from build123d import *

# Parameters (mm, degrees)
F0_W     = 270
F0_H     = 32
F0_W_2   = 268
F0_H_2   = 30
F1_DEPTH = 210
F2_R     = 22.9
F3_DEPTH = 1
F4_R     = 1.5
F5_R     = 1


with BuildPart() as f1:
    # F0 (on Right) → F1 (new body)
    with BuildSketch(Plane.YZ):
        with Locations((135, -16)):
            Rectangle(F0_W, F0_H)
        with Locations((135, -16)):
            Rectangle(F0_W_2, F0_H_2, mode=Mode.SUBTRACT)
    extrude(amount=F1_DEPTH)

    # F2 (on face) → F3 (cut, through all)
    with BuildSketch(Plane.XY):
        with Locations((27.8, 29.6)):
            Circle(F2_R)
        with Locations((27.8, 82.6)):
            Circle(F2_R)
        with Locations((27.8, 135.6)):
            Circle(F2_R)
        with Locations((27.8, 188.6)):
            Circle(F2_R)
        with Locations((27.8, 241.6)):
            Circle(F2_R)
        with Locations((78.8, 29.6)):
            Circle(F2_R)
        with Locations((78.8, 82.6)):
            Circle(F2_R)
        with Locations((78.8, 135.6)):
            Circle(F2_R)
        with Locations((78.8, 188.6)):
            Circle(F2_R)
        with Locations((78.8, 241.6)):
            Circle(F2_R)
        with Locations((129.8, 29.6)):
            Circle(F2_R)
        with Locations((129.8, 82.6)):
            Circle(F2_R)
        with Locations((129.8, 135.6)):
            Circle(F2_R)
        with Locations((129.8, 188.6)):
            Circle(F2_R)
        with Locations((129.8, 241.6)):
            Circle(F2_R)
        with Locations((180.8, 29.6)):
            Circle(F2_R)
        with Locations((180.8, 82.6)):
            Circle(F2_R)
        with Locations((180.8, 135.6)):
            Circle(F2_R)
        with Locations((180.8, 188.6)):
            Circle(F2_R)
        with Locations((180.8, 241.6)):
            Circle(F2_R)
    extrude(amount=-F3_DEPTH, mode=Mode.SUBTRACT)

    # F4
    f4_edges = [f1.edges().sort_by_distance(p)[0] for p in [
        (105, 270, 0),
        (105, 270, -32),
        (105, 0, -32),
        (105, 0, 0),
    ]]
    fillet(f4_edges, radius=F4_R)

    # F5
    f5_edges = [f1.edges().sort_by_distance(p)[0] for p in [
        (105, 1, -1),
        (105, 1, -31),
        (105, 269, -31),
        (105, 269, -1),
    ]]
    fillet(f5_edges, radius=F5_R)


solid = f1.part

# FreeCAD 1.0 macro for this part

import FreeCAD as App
import Part
import Sketcher
from FreeCAD import Vector
Q = App.Units.Quantity


def edges_at(feature, points):
    """Names of the edges that pass closest to the given points."""
    edges = feature.Shape.Edges
    near = lambda p: min(range(len(edges)), key=lambda i: edges[i].distToShape(Part.Vertex(*p))[0])
    return sorted({f"Edge{near(p) + 1}" for p in points})

doc = App.newDocument("Part")
params = doc.addObject("Spreadsheet::Sheet", "Params")
for row, (alias, value) in enumerate([
    ("sketch1_width", "270 mm"),
    ("sketch1_width2", "268 mm"),
    ("sketch1_height", "32 mm"),
    ("sketch1_height2", "30 mm"),
    ("pad1_length", "210 mm"),
    ("sketch2_diameter", "45.8 mm"),
    ("pocket1_length", "1 mm"),
    ("fillet_radius", "1.5 mm"),
    ("fillet2_radius", "1 mm"),
], start=1):
    params.set(f"A{row}", alias)
    params.set(f"B{row}", "=" + value)
    params.setAlias(f"B{row}", alias)

body = doc.addObject("PartDesign::Body", "Body")

# Sketch on YZ plane
sketch1 = body.newObject("Sketcher::SketchObject", "Sketch")
sketch1.AttachmentSupport = (doc.getObject("YZ_Plane"), [""])
sketch1.MapMode = "FlatFace"
sketch1.addGeometry(Part.LineSegment(Vector(0, 0, 0), Vector(0, -32, 0)), False)
sketch1.addGeometry(Part.LineSegment(Vector(0, -32, 0), Vector(270, -32, 0)), False)
sketch1.addGeometry(Part.LineSegment(Vector(270, -32, 0), Vector(270, 0, 0)), False)
sketch1.addGeometry(Part.LineSegment(Vector(270, 0, 0), Vector(0, 0, 0)), False)
sketch1.addGeometry(Part.LineSegment(Vector(269, -31, 0), Vector(1, -31, 0)), False)
sketch1.addGeometry(Part.LineSegment(Vector(1, -31, 0), Vector(1, -1, 0)), False)
sketch1.addGeometry(Part.LineSegment(Vector(1, -1, 0), Vector(269, -1, 0)), False)
sketch1.addGeometry(Part.LineSegment(Vector(269, -1, 0), Vector(269, -31, 0)), False)
sketch1.addConstraint(Sketcher.Constraint("Coincident", 0, 2, 1, 1))
sketch1.addConstraint(Sketcher.Constraint("Coincident", 1, 2, 2, 1))
sketch1.addConstraint(Sketcher.Constraint("Coincident", 2, 2, 3, 1))
sketch1.addConstraint(Sketcher.Constraint("Coincident", 3, 2, 0, 1))
sketch1.addConstraint(Sketcher.Constraint("Coincident", 4, 2, 5, 1))
sketch1.addConstraint(Sketcher.Constraint("Coincident", 5, 2, 6, 1))
sketch1.addConstraint(Sketcher.Constraint("Coincident", 6, 2, 7, 1))
sketch1.addConstraint(Sketcher.Constraint("Coincident", 7, 2, 4, 1))
sketch1.addConstraint(Sketcher.Constraint("Vertical", 0))
sketch1.addConstraint(Sketcher.Constraint("Horizontal", 1))
sketch1.addConstraint(Sketcher.Constraint("Vertical", 2))
sketch1.addConstraint(Sketcher.Constraint("Horizontal", 3))
sketch1.addConstraint(Sketcher.Constraint("Horizontal", 4))
sketch1.addConstraint(Sketcher.Constraint("Vertical", 5))
sketch1.addConstraint(Sketcher.Constraint("Horizontal", 6))
sketch1.addConstraint(Sketcher.Constraint("Vertical", 7))
sketch1.addConstraint(Sketcher.Constraint("Coincident", 3, 2, -1, 1))
sketch1.addConstraint(Sketcher.Constraint("DistanceX", 1, 1, 1, 2, Q("270 mm")))
sketch1.addConstraint(Sketcher.Constraint("DistanceX", 4, 2, 4, 1, Q("268 mm")))
sketch1.addConstraint(Sketcher.Constraint("DistanceY", 0, 2, 0, 1, Q("32 mm")))
sketch1.addConstraint(Sketcher.Constraint("DistanceY", 5, 1, 5, 2, Q("30 mm")))
sketch1.addConstraint(Sketcher.Constraint("DistanceX", -1, 1, 4, 2, Q("1 mm")))
sketch1.addConstraint(Sketcher.Constraint("DistanceY", 4, 2, -1, 1, Q("31 mm")))
sketch1.setExpression("Constraints[17]", "Params.sketch1_width")
sketch1.setExpression("Constraints[18]", "Params.sketch1_width2")
sketch1.setExpression("Constraints[19]", "Params.sketch1_height")
sketch1.setExpression("Constraints[20]", "Params.sketch1_height2")
pad1 = body.newObject("PartDesign::Pad", "Pad")
pad1.Profile = sketch1
pad1.setExpression("Length", "Params.pad1_length")

# Sketch on XY plane
sketch2 = body.newObject("Sketcher::SketchObject", "Sketch001")
sketch2.AttachmentSupport = (doc.getObject("XY_Plane"), [""])
sketch2.MapMode = "FlatFace"
sketch2.addGeometry(Part.Circle(Vector(28, 30, 0), Vector(0, 0, 1), 23), False)
sketch2.addGeometry(Part.Circle(Vector(28, 83, 0), Vector(0, 0, 1), 23), False)
sketch2.addGeometry(Part.Circle(Vector(28, 136, 0), Vector(0, 0, 1), 23), False)
sketch2.addGeometry(Part.Circle(Vector(28, 189, 0), Vector(0, 0, 1), 23), False)
sketch2.addGeometry(Part.Circle(Vector(28, 242, 0), Vector(0, 0, 1), 23), False)
sketch2.addGeometry(Part.Circle(Vector(79, 30, 0), Vector(0, 0, 1), 23), False)
sketch2.addGeometry(Part.Circle(Vector(79, 83, 0), Vector(0, 0, 1), 23), False)
sketch2.addGeometry(Part.Circle(Vector(79, 136, 0), Vector(0, 0, 1), 23), False)
sketch2.addGeometry(Part.Circle(Vector(79, 189, 0), Vector(0, 0, 1), 23), False)
sketch2.addGeometry(Part.Circle(Vector(79, 242, 0), Vector(0, 0, 1), 23), False)
sketch2.addGeometry(Part.Circle(Vector(130, 30, 0), Vector(0, 0, 1), 23), False)
sketch2.addGeometry(Part.Circle(Vector(130, 83, 0), Vector(0, 0, 1), 23), False)
sketch2.addGeometry(Part.Circle(Vector(130, 136, 0), Vector(0, 0, 1), 23), False)
sketch2.addGeometry(Part.Circle(Vector(130, 189, 0), Vector(0, 0, 1), 23), False)
sketch2.addGeometry(Part.Circle(Vector(130, 242, 0), Vector(0, 0, 1), 23), False)
sketch2.addGeometry(Part.Circle(Vector(181, 30, 0), Vector(0, 0, 1), 23), False)
sketch2.addGeometry(Part.Circle(Vector(181, 83, 0), Vector(0, 0, 1), 23), False)
sketch2.addGeometry(Part.Circle(Vector(181, 136, 0), Vector(0, 0, 1), 23), False)
sketch2.addGeometry(Part.Circle(Vector(181, 189, 0), Vector(0, 0, 1), 23), False)
sketch2.addGeometry(Part.Circle(Vector(181, 242, 0), Vector(0, 0, 1), 23), False)
sketch2.addConstraint(Sketcher.Constraint("Equal", 0, 1))
sketch2.addConstraint(Sketcher.Constraint("Equal", 1, 2))
sketch2.addConstraint(Sketcher.Constraint("Equal", 2, 3))
sketch2.addConstraint(Sketcher.Constraint("Equal", 3, 4))
sketch2.addConstraint(Sketcher.Constraint("Equal", 4, 5))
sketch2.addConstraint(Sketcher.Constraint("Equal", 5, 6))
sketch2.addConstraint(Sketcher.Constraint("Equal", 6, 7))
sketch2.addConstraint(Sketcher.Constraint("Equal", 7, 8))
sketch2.addConstraint(Sketcher.Constraint("Equal", 8, 9))
sketch2.addConstraint(Sketcher.Constraint("Equal", 9, 10))
sketch2.addConstraint(Sketcher.Constraint("Equal", 10, 11))
sketch2.addConstraint(Sketcher.Constraint("Equal", 11, 12))
sketch2.addConstraint(Sketcher.Constraint("Equal", 12, 13))
sketch2.addConstraint(Sketcher.Constraint("Equal", 13, 14))
sketch2.addConstraint(Sketcher.Constraint("Equal", 14, 15))
sketch2.addConstraint(Sketcher.Constraint("Equal", 15, 16))
sketch2.addConstraint(Sketcher.Constraint("Equal", 16, 17))
sketch2.addConstraint(Sketcher.Constraint("Equal", 17, 18))
sketch2.addConstraint(Sketcher.Constraint("Equal", 18, 19))
sketch2.addConstraint(Sketcher.Constraint("Horizontal", 0, 3, 5, 3))
sketch2.addConstraint(Sketcher.Constraint("Horizontal", 1, 3, 6, 3))
sketch2.addConstraint(Sketcher.Constraint("Horizontal", 2, 3, 7, 3))
sketch2.addConstraint(Sketcher.Constraint("Horizontal", 3, 3, 8, 3))
sketch2.addConstraint(Sketcher.Constraint("Horizontal", 4, 3, 9, 3))
sketch2.addConstraint(Sketcher.Constraint("Horizontal", 5, 3, 10, 3))
sketch2.addConstraint(Sketcher.Constraint("Horizontal", 6, 3, 11, 3))
sketch2.addConstraint(Sketcher.Constraint("Horizontal", 7, 3, 12, 3))
sketch2.addConstraint(Sketcher.Constraint("Horizontal", 8, 3, 13, 3))
sketch2.addConstraint(Sketcher.Constraint("Horizontal", 9, 3, 14, 3))
sketch2.addConstraint(Sketcher.Constraint("Horizontal", 10, 3, 15, 3))
sketch2.addConstraint(Sketcher.Constraint("Horizontal", 11, 3, 16, 3))
sketch2.addConstraint(Sketcher.Constraint("Horizontal", 12, 3, 17, 3))
sketch2.addConstraint(Sketcher.Constraint("Horizontal", 13, 3, 18, 3))
sketch2.addConstraint(Sketcher.Constraint("Horizontal", 14, 3, 19, 3))
sketch2.addConstraint(Sketcher.Constraint("Vertical", 0, 3, 1, 3))
sketch2.addConstraint(Sketcher.Constraint("Vertical", 1, 3, 2, 3))
sketch2.addConstraint(Sketcher.Constraint("Vertical", 2, 3, 3, 3))
sketch2.addConstraint(Sketcher.Constraint("Vertical", 3, 3, 4, 3))
sketch2.addConstraint(Sketcher.Constraint("Vertical", 5, 3, 6, 3))
sketch2.addConstraint(Sketcher.Constraint("Vertical", 6, 3, 7, 3))
sketch2.addConstraint(Sketcher.Constraint("Vertical", 7, 3, 8, 3))
sketch2.addConstraint(Sketcher.Constraint("Vertical", 8, 3, 9, 3))
sketch2.addConstraint(Sketcher.Constraint("Vertical", 10, 3, 11, 3))
sketch2.addConstraint(Sketcher.Constraint("Vertical", 11, 3, 12, 3))
sketch2.addConstraint(Sketcher.Constraint("Vertical", 12, 3, 13, 3))
sketch2.addConstraint(Sketcher.Constraint("Vertical", 13, 3, 14, 3))
sketch2.addConstraint(Sketcher.Constraint("Vertical", 15, 3, 16, 3))
sketch2.addConstraint(Sketcher.Constraint("Vertical", 16, 3, 17, 3))
sketch2.addConstraint(Sketcher.Constraint("Vertical", 17, 3, 18, 3))
sketch2.addConstraint(Sketcher.Constraint("Vertical", 18, 3, 19, 3))
sketch2.addConstraint(Sketcher.Constraint("Diameter", 0, Q("45.8 mm")))
sketch2.addConstraint(Sketcher.Constraint("DistanceY", 0, 3, 1, 3, Q("53 mm")))
sketch2.addConstraint(Sketcher.Constraint("DistanceY", 1, 3, 2, 3, Q("53 mm")))
sketch2.addConstraint(Sketcher.Constraint("DistanceY", 2, 3, 3, 3, Q("53 mm")))
sketch2.addConstraint(Sketcher.Constraint("DistanceY", 3, 3, 4, 3, Q("53 mm")))
sketch2.addConstraint(Sketcher.Constraint("DistanceX", 0, 3, 5, 3, Q("51 mm")))
sketch2.addConstraint(Sketcher.Constraint("DistanceX", 5, 3, 10, 3, Q("51 mm")))
sketch2.addConstraint(Sketcher.Constraint("DistanceX", 10, 3, 15, 3, Q("51 mm")))
sketch2.addConstraint(Sketcher.Constraint("DistanceX", -1, 1, 0, 3, Q("27.8 mm")))
sketch2.addConstraint(Sketcher.Constraint("DistanceY", -1, 1, 0, 3, Q("29.6 mm")))
sketch2.setExpression("Constraints[50]", "Params.sketch2_diameter")
pocket1 = body.newObject("PartDesign::Pocket", "Pocket")
pocket1.Profile = sketch2
pocket1.setExpression("Length", "Params.pocket1_length")
doc.recompute()

fillet = body.newObject("PartDesign::Fillet", "Fillet")
fillet.Base = (pocket1, edges_at(pocket1, [
    (105, 270, 0),
    (105, 270, -32),
    (105, 0, -32),
    (105, 0, 0),
]))
fillet.setExpression("Radius", "Params.fillet_radius")
doc.recompute()

fillet2 = body.newObject("PartDesign::Fillet", "Fillet001")
fillet2.Base = (fillet, edges_at(fillet, [
    (105, 1, -1),
    (105, 1, -31),
    (105, 269, -31),
    (105, 269, -1),
]))
fillet2.setExpression("Radius", "Params.fillet2_radius")

doc.recompute()
